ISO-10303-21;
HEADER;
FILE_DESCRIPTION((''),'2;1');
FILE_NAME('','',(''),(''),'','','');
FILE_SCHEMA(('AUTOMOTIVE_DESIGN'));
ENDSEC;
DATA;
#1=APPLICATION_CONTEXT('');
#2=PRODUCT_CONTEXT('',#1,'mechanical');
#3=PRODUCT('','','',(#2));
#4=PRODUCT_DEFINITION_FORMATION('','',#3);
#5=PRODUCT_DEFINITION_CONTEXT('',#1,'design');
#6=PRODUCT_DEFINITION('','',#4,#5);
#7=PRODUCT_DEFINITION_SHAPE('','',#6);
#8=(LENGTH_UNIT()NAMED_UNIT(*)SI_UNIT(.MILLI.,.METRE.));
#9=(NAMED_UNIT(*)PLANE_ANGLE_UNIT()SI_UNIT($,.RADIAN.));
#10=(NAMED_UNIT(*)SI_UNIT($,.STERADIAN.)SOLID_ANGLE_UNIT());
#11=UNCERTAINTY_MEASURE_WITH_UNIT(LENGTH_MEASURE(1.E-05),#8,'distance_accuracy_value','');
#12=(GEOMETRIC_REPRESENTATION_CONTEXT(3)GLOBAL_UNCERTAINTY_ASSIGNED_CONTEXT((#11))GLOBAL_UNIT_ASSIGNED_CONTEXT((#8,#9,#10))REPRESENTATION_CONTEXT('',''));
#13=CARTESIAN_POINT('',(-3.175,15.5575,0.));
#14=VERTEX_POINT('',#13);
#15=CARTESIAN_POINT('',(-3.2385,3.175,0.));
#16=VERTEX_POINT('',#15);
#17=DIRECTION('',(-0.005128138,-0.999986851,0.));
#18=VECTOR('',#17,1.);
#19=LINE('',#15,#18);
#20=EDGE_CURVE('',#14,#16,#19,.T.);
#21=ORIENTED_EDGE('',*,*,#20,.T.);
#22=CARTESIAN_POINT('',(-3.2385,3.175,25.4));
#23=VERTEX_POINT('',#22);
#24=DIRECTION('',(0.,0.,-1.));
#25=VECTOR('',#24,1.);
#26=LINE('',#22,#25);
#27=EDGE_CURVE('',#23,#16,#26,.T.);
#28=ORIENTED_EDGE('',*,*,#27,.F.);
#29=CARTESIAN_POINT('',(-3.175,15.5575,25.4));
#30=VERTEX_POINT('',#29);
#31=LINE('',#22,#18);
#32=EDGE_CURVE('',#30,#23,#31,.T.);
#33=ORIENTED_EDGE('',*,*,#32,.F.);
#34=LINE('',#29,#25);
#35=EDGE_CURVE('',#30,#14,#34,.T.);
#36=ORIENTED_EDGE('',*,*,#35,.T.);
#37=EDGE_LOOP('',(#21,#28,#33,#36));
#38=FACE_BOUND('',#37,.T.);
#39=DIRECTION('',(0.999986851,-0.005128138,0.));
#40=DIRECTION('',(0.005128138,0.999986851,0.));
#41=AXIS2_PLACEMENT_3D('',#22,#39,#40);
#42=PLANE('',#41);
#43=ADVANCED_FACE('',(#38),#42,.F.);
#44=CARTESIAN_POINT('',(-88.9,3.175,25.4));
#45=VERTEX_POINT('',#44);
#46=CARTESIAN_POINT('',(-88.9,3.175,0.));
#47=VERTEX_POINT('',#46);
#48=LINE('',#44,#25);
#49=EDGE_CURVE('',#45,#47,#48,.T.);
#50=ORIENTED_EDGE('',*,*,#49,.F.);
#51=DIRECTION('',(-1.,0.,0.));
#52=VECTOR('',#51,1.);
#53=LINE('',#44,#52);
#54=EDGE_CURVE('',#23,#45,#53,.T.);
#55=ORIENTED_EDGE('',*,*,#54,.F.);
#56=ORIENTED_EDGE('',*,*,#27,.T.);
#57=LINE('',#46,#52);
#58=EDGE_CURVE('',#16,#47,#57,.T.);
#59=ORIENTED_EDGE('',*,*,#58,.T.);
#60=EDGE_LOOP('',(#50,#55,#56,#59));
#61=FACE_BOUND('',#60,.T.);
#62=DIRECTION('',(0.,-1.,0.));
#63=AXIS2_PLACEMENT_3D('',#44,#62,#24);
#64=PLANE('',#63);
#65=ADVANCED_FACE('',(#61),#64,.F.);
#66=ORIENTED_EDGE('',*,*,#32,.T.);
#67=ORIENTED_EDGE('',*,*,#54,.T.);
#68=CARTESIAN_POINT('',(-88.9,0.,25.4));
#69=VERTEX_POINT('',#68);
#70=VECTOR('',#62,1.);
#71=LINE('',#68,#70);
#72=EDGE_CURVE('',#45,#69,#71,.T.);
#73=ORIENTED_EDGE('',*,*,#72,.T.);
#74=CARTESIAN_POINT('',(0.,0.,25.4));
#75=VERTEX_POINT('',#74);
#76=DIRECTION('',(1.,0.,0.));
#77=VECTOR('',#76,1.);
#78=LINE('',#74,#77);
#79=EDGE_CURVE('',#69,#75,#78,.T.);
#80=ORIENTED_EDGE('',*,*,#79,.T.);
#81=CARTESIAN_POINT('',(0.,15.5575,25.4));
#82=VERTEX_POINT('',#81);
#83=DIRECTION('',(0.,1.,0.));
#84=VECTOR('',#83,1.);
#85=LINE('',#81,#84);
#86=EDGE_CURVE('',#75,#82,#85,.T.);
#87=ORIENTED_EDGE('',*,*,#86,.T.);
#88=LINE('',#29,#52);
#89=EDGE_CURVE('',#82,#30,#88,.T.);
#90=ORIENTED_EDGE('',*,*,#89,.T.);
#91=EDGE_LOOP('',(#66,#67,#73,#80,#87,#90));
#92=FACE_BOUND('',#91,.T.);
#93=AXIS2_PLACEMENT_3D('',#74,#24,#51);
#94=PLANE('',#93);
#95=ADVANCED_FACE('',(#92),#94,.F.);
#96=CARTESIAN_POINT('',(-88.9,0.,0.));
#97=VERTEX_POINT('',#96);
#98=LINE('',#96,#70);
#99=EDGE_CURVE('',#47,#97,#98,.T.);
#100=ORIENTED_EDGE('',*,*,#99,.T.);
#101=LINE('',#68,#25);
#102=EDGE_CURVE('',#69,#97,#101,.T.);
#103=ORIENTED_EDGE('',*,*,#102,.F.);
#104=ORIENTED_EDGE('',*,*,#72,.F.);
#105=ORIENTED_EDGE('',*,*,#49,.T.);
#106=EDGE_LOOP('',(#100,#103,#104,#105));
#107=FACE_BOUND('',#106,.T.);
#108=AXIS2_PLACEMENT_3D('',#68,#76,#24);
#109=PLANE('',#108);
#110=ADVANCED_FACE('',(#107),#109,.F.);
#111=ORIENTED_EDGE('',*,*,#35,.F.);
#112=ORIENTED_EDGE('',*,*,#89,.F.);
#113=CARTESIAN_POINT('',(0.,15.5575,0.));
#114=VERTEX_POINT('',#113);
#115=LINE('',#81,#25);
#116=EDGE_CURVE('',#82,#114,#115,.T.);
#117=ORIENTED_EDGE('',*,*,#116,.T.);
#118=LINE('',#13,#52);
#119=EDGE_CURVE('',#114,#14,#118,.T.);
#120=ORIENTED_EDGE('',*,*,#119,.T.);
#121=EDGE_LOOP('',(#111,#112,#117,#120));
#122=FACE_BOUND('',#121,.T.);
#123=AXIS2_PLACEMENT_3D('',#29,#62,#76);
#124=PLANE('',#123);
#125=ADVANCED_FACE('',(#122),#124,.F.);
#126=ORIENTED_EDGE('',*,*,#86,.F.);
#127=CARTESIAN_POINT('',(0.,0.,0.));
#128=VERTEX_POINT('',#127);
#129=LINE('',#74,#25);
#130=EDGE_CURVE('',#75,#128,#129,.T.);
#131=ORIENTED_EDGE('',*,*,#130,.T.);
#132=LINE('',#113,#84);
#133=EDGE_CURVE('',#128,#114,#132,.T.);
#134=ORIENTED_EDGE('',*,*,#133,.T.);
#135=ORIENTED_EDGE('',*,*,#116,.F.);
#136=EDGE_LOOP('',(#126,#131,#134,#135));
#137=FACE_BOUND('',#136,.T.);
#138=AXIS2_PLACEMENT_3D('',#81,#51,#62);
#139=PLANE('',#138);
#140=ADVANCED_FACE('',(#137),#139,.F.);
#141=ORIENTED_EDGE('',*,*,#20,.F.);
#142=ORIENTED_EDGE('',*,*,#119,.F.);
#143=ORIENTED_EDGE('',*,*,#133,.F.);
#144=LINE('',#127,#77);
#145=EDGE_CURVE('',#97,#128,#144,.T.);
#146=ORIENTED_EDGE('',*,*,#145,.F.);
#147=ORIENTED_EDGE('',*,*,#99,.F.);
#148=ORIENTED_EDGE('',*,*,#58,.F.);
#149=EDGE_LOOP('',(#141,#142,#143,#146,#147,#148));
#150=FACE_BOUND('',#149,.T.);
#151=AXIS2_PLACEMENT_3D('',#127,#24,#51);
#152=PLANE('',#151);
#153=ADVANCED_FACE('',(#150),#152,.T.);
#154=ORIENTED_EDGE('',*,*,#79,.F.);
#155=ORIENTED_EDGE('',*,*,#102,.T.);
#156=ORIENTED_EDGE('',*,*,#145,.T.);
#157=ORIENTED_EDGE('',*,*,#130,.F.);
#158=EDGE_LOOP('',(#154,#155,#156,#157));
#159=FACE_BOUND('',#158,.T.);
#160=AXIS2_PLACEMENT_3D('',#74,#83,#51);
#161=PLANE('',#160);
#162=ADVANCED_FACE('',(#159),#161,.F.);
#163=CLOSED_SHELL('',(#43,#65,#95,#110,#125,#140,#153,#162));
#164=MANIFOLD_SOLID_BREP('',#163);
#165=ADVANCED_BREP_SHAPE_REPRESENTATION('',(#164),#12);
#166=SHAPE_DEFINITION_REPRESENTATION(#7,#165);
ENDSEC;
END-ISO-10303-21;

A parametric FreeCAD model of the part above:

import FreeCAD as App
import Part
import Sketcher

V = App.Vector
Q = App.Units.Quantity

doc = App.newDocument("Part")
body = doc.addObject("PartDesign::Body", "Body")

sketch1 = body.newObject("Sketcher::SketchObject", "Sketch")
sketch1.AttachmentSupport = (doc.getObject("XY_Plane"), [""])
sketch1.MapMode = "FlatFace"
sketch1.addGeometry(Part.LineSegment(V(-88.9, 0, 0), V(0, 0, 0)), False)
sketch1.addGeometry(Part.LineSegment(V(0, 0, 0), V(0, 15.6, 0)), False)
sketch1.addGeometry(Part.LineSegment(V(0, 15.6, 0), V(-3.2, 15.6, 0)), False)
sketch1.addGeometry(Part.LineSegment(V(-3.2, 15.6, 0), V(-3.2, 3.2, 0)), False)
sketch1.addGeometry(Part.LineSegment(V(-3.2, 3.2, 0), V(-88.9, 3.2, 0)), False)
sketch1.addGeometry(Part.LineSegment(V(-88.9, 3.2, 0), V(-88.9, 0, 0)), False)
sketch1.addConstraint(Sketcher.Constraint("Coincident", 0, 2, 1, 1))
sketch1.addConstraint(Sketcher.Constraint("Coincident", 1, 2, 2, 1))
sketch1.addConstraint(Sketcher.Constraint("Coincident", 2, 2, 3, 1))
sketch1.addConstraint(Sketcher.Constraint("Coincident", 3, 2, 4, 1))
sketch1.addConstraint(Sketcher.Constraint("Coincident", 4, 2, 5, 1))
sketch1.addConstraint(Sketcher.Constraint("Coincident", 5, 2, 0, 1))
sketch1.addConstraint(Sketcher.Constraint("Horizontal", 0))
sketch1.addConstraint(Sketcher.Constraint("Vertical", 1))
sketch1.addConstraint(Sketcher.Constraint("Horizontal", 2))
sketch1.addConstraint(Sketcher.Constraint("Horizontal", 4))
sketch1.addConstraint(Sketcher.Constraint("Vertical", 5))
sketch1.addConstraint(Sketcher.Constraint("Coincident", 0, 2, -1, 1))
sketch1.addConstraint(Sketcher.Constraint("Equal", 2, 5))
sketch1.addConstraint(Sketcher.Constraint("DistanceX", 0, 1, 0, 2, Q("3.5 in")))
sketch1.addConstraint(Sketcher.Constraint("DistanceX", 2, 2, 2, 1, Q("0.125 in")))
sketch1.addConstraint(Sketcher.Constraint("DistanceX", 4, 2, 4, 1, Q("3.3725 in")))
sketch1.addConstraint(Sketcher.Constraint("DistanceY", 1, 1, 1, 2, Q("0.6125 in")))
pad1 = body.newObject("PartDesign::Pad", "Pad")
pad1.Profile = sketch1
pad1.Length = Q("1 in")

doc.recompute()
